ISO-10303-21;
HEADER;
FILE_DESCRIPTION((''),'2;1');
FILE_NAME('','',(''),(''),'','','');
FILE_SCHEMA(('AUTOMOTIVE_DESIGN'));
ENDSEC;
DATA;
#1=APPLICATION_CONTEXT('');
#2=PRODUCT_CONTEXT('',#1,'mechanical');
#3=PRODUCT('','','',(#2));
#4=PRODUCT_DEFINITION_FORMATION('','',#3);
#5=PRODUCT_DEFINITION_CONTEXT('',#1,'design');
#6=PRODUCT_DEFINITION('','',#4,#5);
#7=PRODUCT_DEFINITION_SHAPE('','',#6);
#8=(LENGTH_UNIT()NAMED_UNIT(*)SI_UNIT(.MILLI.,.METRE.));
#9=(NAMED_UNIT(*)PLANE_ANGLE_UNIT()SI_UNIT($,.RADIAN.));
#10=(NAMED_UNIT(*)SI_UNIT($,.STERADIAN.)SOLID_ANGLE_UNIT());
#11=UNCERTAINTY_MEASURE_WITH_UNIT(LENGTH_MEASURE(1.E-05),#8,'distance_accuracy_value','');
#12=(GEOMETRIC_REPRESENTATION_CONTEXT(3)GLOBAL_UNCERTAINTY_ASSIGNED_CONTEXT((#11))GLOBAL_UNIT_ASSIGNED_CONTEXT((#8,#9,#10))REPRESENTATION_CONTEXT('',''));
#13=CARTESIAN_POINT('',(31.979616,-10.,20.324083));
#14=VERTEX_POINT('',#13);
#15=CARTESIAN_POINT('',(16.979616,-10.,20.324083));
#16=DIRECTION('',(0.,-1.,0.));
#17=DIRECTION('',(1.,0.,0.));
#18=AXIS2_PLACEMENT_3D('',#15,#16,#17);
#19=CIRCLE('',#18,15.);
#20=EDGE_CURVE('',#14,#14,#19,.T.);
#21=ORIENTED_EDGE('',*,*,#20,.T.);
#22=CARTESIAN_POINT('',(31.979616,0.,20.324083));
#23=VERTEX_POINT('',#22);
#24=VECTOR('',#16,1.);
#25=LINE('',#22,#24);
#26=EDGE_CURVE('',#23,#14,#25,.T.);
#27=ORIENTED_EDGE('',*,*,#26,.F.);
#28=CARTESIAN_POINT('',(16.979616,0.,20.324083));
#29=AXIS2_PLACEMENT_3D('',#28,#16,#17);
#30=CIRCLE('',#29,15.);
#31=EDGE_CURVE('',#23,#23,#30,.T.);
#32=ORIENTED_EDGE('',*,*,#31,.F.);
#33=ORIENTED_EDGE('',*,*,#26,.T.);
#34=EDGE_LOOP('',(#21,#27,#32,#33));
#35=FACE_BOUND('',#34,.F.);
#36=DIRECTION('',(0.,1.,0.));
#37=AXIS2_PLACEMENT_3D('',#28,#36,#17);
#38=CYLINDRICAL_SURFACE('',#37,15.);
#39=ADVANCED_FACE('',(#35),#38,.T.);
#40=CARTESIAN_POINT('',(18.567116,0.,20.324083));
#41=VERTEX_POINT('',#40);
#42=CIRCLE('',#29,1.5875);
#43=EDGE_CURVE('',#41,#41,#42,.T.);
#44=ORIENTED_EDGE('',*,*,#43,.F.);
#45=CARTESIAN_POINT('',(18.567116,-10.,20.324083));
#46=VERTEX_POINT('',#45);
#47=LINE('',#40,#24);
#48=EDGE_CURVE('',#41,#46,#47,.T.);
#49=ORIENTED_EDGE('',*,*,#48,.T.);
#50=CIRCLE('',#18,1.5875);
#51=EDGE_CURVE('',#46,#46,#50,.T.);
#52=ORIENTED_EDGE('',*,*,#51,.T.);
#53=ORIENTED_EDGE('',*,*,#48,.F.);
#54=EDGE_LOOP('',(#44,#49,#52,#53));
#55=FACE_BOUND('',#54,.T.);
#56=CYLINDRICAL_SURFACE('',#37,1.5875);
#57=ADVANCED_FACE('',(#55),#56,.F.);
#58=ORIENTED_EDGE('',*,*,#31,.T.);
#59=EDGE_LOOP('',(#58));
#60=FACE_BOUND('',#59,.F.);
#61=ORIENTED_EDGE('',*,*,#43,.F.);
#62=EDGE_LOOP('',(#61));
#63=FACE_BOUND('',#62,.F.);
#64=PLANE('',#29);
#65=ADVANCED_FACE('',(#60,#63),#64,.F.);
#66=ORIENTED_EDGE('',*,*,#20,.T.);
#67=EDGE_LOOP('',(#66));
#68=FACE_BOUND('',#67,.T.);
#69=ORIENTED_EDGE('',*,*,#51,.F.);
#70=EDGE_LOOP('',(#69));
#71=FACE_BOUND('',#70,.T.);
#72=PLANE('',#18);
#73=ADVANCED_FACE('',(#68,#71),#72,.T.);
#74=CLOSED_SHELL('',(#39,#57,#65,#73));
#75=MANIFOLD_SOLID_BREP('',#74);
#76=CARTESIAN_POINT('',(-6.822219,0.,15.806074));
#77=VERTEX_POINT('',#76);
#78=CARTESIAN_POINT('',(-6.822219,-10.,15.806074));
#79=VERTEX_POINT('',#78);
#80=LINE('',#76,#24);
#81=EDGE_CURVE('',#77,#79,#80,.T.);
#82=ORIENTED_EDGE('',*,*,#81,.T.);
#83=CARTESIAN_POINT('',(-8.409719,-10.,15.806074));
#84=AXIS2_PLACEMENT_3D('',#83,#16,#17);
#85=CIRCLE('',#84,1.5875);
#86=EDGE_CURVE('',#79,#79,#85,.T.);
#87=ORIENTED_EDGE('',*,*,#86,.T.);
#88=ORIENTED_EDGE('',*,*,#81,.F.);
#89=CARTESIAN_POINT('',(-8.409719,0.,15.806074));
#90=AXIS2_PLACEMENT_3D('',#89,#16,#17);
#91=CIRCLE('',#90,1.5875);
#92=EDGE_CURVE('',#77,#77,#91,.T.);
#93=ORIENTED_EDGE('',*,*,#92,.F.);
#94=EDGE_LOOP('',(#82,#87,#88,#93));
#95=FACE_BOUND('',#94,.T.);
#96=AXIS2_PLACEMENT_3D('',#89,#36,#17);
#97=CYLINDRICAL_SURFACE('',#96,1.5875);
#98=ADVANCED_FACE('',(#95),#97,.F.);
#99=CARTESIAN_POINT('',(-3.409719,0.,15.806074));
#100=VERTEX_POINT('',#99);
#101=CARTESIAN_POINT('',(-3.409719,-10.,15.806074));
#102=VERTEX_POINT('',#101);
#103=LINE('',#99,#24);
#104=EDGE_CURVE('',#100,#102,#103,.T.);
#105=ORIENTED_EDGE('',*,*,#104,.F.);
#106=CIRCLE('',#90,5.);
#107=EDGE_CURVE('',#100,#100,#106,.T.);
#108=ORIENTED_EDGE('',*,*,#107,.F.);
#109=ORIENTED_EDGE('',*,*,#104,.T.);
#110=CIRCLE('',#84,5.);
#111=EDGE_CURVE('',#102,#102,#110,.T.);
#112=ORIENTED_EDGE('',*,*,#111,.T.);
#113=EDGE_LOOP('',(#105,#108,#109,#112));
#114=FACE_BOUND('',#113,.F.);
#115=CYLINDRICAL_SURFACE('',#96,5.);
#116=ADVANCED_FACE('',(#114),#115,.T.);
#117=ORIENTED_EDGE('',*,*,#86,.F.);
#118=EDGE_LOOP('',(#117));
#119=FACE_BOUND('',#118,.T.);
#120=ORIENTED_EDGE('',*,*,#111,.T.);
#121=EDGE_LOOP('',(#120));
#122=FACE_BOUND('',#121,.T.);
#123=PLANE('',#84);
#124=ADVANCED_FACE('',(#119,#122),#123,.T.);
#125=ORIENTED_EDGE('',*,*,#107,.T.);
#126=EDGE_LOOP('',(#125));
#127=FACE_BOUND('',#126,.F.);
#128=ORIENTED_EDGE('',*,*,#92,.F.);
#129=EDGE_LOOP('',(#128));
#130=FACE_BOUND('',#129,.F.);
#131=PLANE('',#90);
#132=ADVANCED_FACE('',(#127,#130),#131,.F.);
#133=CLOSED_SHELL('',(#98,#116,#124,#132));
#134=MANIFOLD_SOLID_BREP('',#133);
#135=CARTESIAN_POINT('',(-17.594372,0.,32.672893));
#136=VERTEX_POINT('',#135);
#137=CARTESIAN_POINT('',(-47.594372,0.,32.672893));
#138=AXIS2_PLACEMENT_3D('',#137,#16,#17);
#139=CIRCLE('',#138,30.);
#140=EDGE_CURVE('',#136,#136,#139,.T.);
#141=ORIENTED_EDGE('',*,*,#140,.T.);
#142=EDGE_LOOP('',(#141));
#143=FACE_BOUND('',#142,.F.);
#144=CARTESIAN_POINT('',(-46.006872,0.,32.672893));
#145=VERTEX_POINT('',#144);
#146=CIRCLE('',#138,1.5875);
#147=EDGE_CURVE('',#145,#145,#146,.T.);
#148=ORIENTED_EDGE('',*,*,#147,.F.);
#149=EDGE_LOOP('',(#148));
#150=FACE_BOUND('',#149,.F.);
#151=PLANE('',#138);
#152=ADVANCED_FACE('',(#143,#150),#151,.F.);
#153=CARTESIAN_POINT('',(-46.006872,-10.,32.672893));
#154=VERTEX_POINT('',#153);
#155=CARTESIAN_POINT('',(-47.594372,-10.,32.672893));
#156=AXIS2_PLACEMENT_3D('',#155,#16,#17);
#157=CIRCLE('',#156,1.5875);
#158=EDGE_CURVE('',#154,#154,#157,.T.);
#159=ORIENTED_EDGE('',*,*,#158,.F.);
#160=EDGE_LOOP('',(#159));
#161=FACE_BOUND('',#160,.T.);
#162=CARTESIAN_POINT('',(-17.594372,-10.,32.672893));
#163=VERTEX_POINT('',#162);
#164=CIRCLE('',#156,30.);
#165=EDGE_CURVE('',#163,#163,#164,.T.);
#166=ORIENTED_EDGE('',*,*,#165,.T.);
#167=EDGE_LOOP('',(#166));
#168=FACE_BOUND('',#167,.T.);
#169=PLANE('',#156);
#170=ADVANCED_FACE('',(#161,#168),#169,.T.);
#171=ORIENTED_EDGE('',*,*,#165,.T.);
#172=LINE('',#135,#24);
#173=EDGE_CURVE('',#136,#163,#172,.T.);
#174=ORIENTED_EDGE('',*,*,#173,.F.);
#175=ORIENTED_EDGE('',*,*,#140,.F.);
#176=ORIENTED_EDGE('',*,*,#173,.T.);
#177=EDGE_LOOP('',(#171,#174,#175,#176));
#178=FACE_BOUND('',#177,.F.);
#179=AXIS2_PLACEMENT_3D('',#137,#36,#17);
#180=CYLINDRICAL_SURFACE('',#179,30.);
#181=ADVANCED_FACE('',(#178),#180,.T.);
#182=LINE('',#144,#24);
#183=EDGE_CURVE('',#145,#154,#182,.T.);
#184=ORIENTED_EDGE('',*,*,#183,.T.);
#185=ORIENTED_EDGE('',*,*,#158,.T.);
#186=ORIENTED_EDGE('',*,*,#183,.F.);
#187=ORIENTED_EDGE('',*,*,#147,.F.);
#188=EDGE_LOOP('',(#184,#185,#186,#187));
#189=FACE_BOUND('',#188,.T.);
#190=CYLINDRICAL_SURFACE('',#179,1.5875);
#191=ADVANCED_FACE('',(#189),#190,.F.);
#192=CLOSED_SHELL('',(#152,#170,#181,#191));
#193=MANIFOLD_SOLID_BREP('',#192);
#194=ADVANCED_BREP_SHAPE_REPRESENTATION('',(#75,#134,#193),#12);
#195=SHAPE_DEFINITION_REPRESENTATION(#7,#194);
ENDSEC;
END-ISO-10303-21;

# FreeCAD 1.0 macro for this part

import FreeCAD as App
import Part
import Sketcher

doc = App.newDocument("Part")
body = doc.addObject("PartDesign::Body", "Body")
body.AllowCompound = True

# Sketch on XZ plane
sketch1 = doc.addObject("Sketcher::SketchObject", "Sketch")
body.addObject(sketch1)
sketch1.AttachmentSupport = (doc.XZ_Plane, [""])
sketch1.MapMode = "FlatFace"
sketch1.addGeometry([
    Part.Circle(App.Vector(-47.6, 32.7, 0), App.Vector(0, 0, 1), 30),  # 0
    Part.Circle(App.Vector(-47.6, 32.7, 0), App.Vector(0, 0, 1), 1.6),  # 1
    Part.Circle(App.Vector(17, 20.3, 0), App.Vector(0, 0, 1), 15),  # 2
    Part.Circle(App.Vector(17, 20.3, 0), App.Vector(0, 0, 1), 1.6),  # 3
    Part.Circle(App.Vector(-8.4, 15.8, 0), App.Vector(0, 0, 1), 5),  # 4
    Part.Circle(App.Vector(-8.4, 15.8, 0), App.Vector(0, 0, 1), 1.6),  # 5
], False)
sketch1.addConstraint([
    Sketcher.Constraint("Coincident", 1, 3, 0, 3),
    Sketcher.Constraint("Coincident", 3, 3, 2, 3),
    Sketcher.Constraint("Coincident", 5, 3, 4, 3),
    Sketcher.Constraint("Equal", 1, 3),
    Sketcher.Constraint("Equal", 3, 5),
    Sketcher.Constraint("Diameter", 0, 60.0),
    Sketcher.Constraint("Diameter", 2, 30.0),
    Sketcher.Constraint("Diameter", 4, 10.0),
    Sketcher.Constraint("Diameter", 1, 3.175),
    Sketcher.Constraint("DistanceX", 4, 3, -1, 1, 8.409719),
    Sketcher.Constraint("DistanceX", 0, 3, 2, 3, 64.573988),
    Sketcher.Constraint("DistanceY", 2, 3, 0, 3, 12.34881),
    Sketcher.Constraint("DistanceY", 4, 3, 2, 3, 4.518009),
    Sketcher.Constraint("DistanceX", 0, 3, -1, 1, 47.594372),
    Sketcher.Constraint("DistanceY", -1, 1, 0, 3, 32.672893),
])
pad1 = doc.addObject("PartDesign::Pad", "Pad")
body.addObject(pad1)
pad1.Profile = sketch1
pad1.Length = 10

doc.recompute()
